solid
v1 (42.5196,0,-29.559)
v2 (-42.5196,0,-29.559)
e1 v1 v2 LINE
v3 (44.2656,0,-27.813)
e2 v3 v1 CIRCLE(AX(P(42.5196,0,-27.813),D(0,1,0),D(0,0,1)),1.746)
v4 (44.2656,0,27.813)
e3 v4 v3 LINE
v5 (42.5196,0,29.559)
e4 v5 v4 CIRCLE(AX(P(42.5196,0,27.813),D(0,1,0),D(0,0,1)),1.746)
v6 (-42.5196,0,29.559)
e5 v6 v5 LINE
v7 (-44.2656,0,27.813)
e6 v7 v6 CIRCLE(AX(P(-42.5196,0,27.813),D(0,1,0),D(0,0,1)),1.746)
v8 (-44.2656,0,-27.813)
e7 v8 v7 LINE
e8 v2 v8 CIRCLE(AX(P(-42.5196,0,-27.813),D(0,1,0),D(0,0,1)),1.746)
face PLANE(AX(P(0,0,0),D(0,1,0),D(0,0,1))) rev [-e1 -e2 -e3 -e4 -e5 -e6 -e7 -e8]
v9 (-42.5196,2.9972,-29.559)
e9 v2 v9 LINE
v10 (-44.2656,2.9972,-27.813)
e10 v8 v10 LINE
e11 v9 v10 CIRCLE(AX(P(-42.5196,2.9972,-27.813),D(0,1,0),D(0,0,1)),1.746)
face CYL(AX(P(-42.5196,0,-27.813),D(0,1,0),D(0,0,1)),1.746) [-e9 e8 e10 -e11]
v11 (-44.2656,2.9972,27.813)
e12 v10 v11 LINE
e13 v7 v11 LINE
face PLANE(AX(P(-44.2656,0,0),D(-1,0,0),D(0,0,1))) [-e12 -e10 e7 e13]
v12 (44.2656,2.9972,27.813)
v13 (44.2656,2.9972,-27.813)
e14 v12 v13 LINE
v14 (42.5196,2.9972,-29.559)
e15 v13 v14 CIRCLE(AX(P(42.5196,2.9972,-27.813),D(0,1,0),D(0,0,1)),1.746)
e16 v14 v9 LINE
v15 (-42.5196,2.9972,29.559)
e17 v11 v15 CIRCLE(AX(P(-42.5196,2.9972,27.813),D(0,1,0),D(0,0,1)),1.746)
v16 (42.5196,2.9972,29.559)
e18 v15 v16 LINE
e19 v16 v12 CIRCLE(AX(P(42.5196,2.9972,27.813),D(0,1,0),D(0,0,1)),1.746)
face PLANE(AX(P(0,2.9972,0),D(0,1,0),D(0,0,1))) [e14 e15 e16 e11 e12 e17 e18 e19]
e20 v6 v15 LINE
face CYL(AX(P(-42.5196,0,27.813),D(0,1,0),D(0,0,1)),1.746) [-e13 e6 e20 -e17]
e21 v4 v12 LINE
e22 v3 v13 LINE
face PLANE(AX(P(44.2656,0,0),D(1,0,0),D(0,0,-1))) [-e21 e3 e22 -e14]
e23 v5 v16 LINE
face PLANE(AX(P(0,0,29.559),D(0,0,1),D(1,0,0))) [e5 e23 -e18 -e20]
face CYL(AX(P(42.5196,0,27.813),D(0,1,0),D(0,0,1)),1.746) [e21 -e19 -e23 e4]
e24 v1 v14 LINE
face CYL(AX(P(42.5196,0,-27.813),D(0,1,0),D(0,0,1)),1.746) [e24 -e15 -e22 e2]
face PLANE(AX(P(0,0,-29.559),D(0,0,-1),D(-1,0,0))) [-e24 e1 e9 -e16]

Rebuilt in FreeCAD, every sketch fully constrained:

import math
import FreeCAD as App
import Part
import Sketcher
from FreeCAD import Vector
Q = App.Units.Quantity


def edges_at(feature, points):
    """Names of the edges that pass closest to the given points."""
    edges = feature.Shape.Edges
    near = lambda p: min(range(len(edges)), key=lambda i: edges[i].distToShape(Part.Vertex(*p))[0])
    return sorted({f"Edge{near(p) + 1}" for p in points})

doc = App.newDocument("Part")
params = doc.addObject("Spreadsheet::Sheet", "Params")
for row, (alias, value) in enumerate([
    ("pad1_length", "0.118 in"),
    ("fillet_radius", "2 mm"),
    ("sketch2_height", "2.19 in"),
    ("sketch2_width", "3.348 in"),
], start=1):
    params.set(f"A{row}", alias)
    params.set(f"B{row}", "=" + value)
    params.setAlias(f"B{row}", alias)

body = doc.addObject("PartDesign::Body", "Body")

# Sketch on XZ plane
sketch1 = doc.addObject("Sketcher::SketchObject", "Sketch")
body.addObject(sketch1)
sketch1.AttachmentSupport = (doc.XZ_Plane, [""])
sketch1.MapMode = "FlatFace"
sketch1.addGeometry(Part.LineSegment(Vector(-45, -30, 0), Vector(-45, 30, 0)), False)
sketch1.addGeometry(Part.LineSegment(Vector(-45, 30, 0), Vector(45, 30, 0)), False)
sketch1.addGeometry(Part.LineSegment(Vector(45, 30, 0), Vector(45, -30, 0)), False)
sketch1.addGeometry(Part.LineSegment(Vector(45, -30, 0), Vector(-45, -30, 0)), False)
sketch1.addConstraint(Sketcher.Constraint("Coincident", 0, 2, 1, 1))
sketch1.addConstraint(Sketcher.Constraint("Coincident", 1, 2, 2, 1))
sketch1.addConstraint(Sketcher.Constraint("Coincident", 2, 2, 3, 1))
sketch1.addConstraint(Sketcher.Constraint("Coincident", 3, 2, 0, 1))
sketch1.addConstraint(Sketcher.Constraint("Vertical", 0))
sketch1.addConstraint(Sketcher.Constraint("Horizontal", 1))
sketch1.addConstraint(Sketcher.Constraint("Vertical", 2))
sketch1.addConstraint(Sketcher.Constraint("Horizontal", 3))
sketch1.addConstraint(Sketcher.Constraint("Symmetric", 0, 2, 2, 2, -1, 1))
sketch1.addConstraint(Sketcher.Constraint("DistanceX", 1, 1, 1, 2, Q("89.0392 mm")))
sketch1.addConstraint(Sketcher.Constraint("DistanceY", 0, 1, 0, 2, Q("59.626 mm")))
pad1 = doc.addObject("PartDesign::Pad", "Pad")
body.addObject(pad1)
pad1.Profile = sketch1
pad1.setExpression("Length", "Params.pad1_length")
pad1.Reversed = True
doc.recompute()

fillet = doc.addObject("PartDesign::Fillet", "Fillet")
body.addObject(fillet)
fillet.Base = (pad1, edges_at(pad1, [
    (44.52, 1.499, 29.813),
    (-44.52, 1.499, 29.813),
    (-44.52, 1.499, -29.813),
    (44.52, 1.499, -29.813),
]))
fillet.setExpression("Radius", "Params.fillet_radius")

# Sketch on XZ plane
sketch2 = doc.addObject("Sketcher::SketchObject", "Sketch001")
body.addObject(sketch2)
sketch2.AttachmentSupport = (doc.XZ_Plane, [""])
sketch2.MapMode = "FlatFace"
sketch2.AttachmentOffset = App.Placement(Vector(0, 0, -0.118 * 25.4), App.Rotation())
sketch2.addGeometry(Part.ArcOfCircle(Part.Circle(Vector(-42.5, -27.8, 0), Vector(0, 0, 1), 2), math.radians(-180), math.radians(-90)), False)
sketch2.addGeometry(Part.LineSegment(Vector(-44.5, -27.8, 0), Vector(-44.5, 27.8, 0)), False)
sketch2.addGeometry(Part.ArcOfCircle(Part.Circle(Vector(-42.5, 27.8, 0), Vector(0, 0, 1), 2), math.radians(90), math.radians(180)), False)
sketch2.addGeometry(Part.LineSegment(Vector(-42.5, 29.8, 0), Vector(42.5, 29.8, 0)), False)
sketch2.addGeometry(Part.ArcOfCircle(Part.Circle(Vector(42.5, 27.8, 0), Vector(0, 0, 1), 2), math.radians(0), math.radians(90)), False)
sketch2.addGeometry(Part.LineSegment(Vector(44.5, 27.8, 0), Vector(44.5, -27.8, 0)), False)
sketch2.addGeometry(Part.ArcOfCircle(Part.Circle(Vector(42.5, -27.8, 0), Vector(0, 0, 1), 2), math.radians(-90), math.radians(0)), False)
sketch2.addGeometry(Part.LineSegment(Vector(42.5, -29.8, 0), Vector(-42.5, -29.8, 0)), False)
sketch2.addGeometry(Part.ArcOfCircle(Part.Circle(Vector(-42.5, -27.8, 0), Vector(0, 0, 1), 1.7), math.radians(180), math.radians(270)), False)
sketch2.addGeometry(Part.LineSegment(Vector(-42.5, -29.6, 0), Vector(42.5, -29.6, 0)), False)
sketch2.addGeometry(Part.ArcOfCircle(Part.Circle(Vector(42.5, -27.8, 0), Vector(0, 0, 1), 1.7), math.radians(-90), math.radians(0)), False)
sketch2.addGeometry(Part.LineSegment(Vector(44.3, -27.8, 0), Vector(44.3, 27.8, 0)), False)
sketch2.addGeometry(Part.ArcOfCircle(Part.Circle(Vector(42.5, 27.8, 0), Vector(0, 0, 1), 1.7), math.radians(0), math.radians(90)), False)
sketch2.addGeometry(Part.LineSegment(Vector(42.5, 29.6, 0), Vector(-42.5, 29.6, 0)), False)
sketch2.addGeometry(Part.ArcOfCircle(Part.Circle(Vector(-42.5, 27.8, 0), Vector(0, 0, 1), 1.7), math.radians(90), math.radians(180)), False)
sketch2.addGeometry(Part.LineSegment(Vector(-44.3, 27.8, 0), Vector(-44.3, -27.8, 0)), False)
sketch2.addConstraint(Sketcher.Constraint("Tangent", 0, 1, 1, 1))
sketch2.addConstraint(Sketcher.Constraint("Tangent", 1, 2, 2, 2))
sketch2.addConstraint(Sketcher.Constraint("Tangent", 2, 1, 3, 1))
sketch2.addConstraint(Sketcher.Constraint("Tangent", 3, 2, 4, 2))
sketch2.addConstraint(Sketcher.Constraint("Tangent", 4, 1, 5, 1))
sketch2.addConstraint(Sketcher.Constraint("Tangent", 5, 2, 6, 2))
sketch2.addConstraint(Sketcher.Constraint("Tangent", 6, 1, 7, 1))
sketch2.addConstraint(Sketcher.Constraint("Tangent", 7, 2, 0, 2))
sketch2.addConstraint(Sketcher.Constraint("Tangent", 8, 2, 9, 1))
sketch2.addConstraint(Sketcher.Constraint("Tangent", 9, 2, 10, 1))
sketch2.addConstraint(Sketcher.Constraint("Tangent", 10, 2, 11, 1))
sketch2.addConstraint(Sketcher.Constraint("Tangent", 11, 2, 12, 1))
sketch2.addConstraint(Sketcher.Constraint("Tangent", 12, 2, 13, 1))
sketch2.addConstraint(Sketcher.Constraint("Tangent", 13, 2, 14, 1))
sketch2.addConstraint(Sketcher.Constraint("Tangent", 14, 2, 15, 1))
sketch2.addConstraint(Sketcher.Constraint("Tangent", 15, 2, 8, 1))
sketch2.addConstraint(Sketcher.Constraint("Vertical", 1))
sketch2.addConstraint(Sketcher.Constraint("Horizontal", 3))
sketch2.addConstraint(Sketcher.Constraint("Vertical", 5))
sketch2.addConstraint(Sketcher.Constraint("Horizontal", 7))
sketch2.addConstraint(Sketcher.Constraint("Horizontal", 9))
sketch2.addConstraint(Sketcher.Constraint("Vertical", 11))
sketch2.addConstraint(Sketcher.Constraint("Horizontal", 13))
sketch2.addConstraint(Sketcher.Constraint("Vertical", 15))
sketch2.addConstraint(Sketcher.Constraint("Coincident", 8, 3, 0, 3))
sketch2.addConstraint(Sketcher.Constraint("Coincident", 10, 3, 6, 3))
sketch2.addConstraint(Sketcher.Constraint("Coincident", 12, 3, 4, 3))
sketch2.addConstraint(Sketcher.Constraint("Equal", 0, 2))
sketch2.addConstraint(Sketcher.Constraint("Equal", 2, 4))
sketch2.addConstraint(Sketcher.Constraint("Equal", 4, 6))
sketch2.addConstraint(Sketcher.Constraint("Equal", 12, 14))
sketch2.addConstraint(Sketcher.Constraint("Symmetric", 0, 3, 4, 3, -1, 1))
sketch2.addConstraint(Sketcher.Constraint("DistanceY", 1, 1, 1, 2, Q("2.19 in")))
sketch2.addConstraint(Sketcher.Constraint("DistanceX", 3, 1, 3, 2, Q("3.348 in")))
sketch2.addConstraint(Sketcher.Constraint("Radius", 0, Q("2 mm")))
sketch2.addConstraint(Sketcher.Constraint("Radius", 8, Q("1.746 mm")))
sketch2.setExpression("Constraints[32]", "Params.sketch2_height")
sketch2.setExpression("Constraints[33]", "Params.sketch2_width")
pocket1 = doc.addObject("PartDesign::Pocket", "Pocket")
body.addObject(pocket1)
pocket1.Profile = sketch2
pocket1.Type = "ThroughAll"
pocket1.Reversed = True

doc.recompute()
